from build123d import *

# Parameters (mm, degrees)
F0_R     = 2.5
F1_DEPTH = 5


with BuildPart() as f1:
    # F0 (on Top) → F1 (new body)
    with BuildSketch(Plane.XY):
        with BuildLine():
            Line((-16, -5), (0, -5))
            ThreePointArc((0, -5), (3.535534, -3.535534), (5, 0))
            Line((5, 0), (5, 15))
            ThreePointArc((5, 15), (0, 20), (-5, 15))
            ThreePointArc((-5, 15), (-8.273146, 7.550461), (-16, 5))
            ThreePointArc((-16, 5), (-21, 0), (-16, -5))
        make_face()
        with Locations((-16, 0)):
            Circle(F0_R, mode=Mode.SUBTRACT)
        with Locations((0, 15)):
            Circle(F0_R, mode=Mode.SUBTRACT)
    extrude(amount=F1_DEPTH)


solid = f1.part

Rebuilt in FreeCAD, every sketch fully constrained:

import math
import FreeCAD as App
import Part
import Sketcher
from FreeCAD import Vector
Q = App.Units.Quantity

doc = App.newDocument("Part")
params = doc.addObject("Spreadsheet::Sheet", "Params")
for row, (alias, value) in enumerate([
    ("sketch1_diameter", "5 mm"),
    ("sketch1_radius", "5 mm"),
    ("sketch1_radius2", "9.999999 mm"),
    ("sketch1_width", "16 mm"),
    ("sketch1_height", "15 mm"),
    ("pad1_length", "5 mm"),
], start=1):
    params.set(f"A{row}", alias)
    params.set(f"B{row}", "=" + value)
    params.setAlias(f"B{row}", alias)

body = doc.addObject("PartDesign::Body", "Body")

# Sketch on XY plane
sketch1 = body.newObject("Sketcher::SketchObject", "Sketch")
sketch1.AttachmentSupport = (doc.getObject("XY_Plane"), [""])
sketch1.MapMode = "FlatFace"
sketch1.addGeometry([
    Part.LineSegment(Vector(-16, -5, 0), Vector(0, -5, 0)),  # 0
    Part.ArcOfCircle(Part.Circle(Vector(0, 0, 0), Vector(0, 0, 1), 5), math.radians(-90), math.radians(0)),  # 1
    Part.LineSegment(Vector(5, 0, 0), Vector(5, 15, 0)),  # 2
    Part.ArcOfCircle(Part.Circle(Vector(0, 15, 0), Vector(0, 0, 1), 5), math.radians(0), math.radians(180)),  # 3
    Part.ArcOfCircle(Part.Circle(Vector(-15, 14.9, 0), Vector(0, 0, 1), 10), math.radians(-96), math.radians(0)),  # 4
    Part.ArcOfCircle(Part.Circle(Vector(-16, 0, 0), Vector(0, 0, 1), 5), math.radians(90), math.radians(270)),  # 5
    Part.Circle(Vector(-16, 0, 0), Vector(0, 0, 1), 2.5),  # 6
    Part.Circle(Vector(0, 15, 0), Vector(0, 0, 1), 2.5),  # 7
], False)
sketch1.addConstraint([
    Sketcher.Constraint("Tangent", 0, 2, 1, 1),
    Sketcher.Constraint("Tangent", 1, 2, 2, 1),
    Sketcher.Constraint("Tangent", 2, 2, 3, 1),
    Sketcher.Constraint("Coincident", 3, 2, 4, 2),
    Sketcher.Constraint("Coincident", 4, 1, 5, 1),
    Sketcher.Constraint("Tangent", 5, 2, 0, 1),
    Sketcher.Constraint("Horizontal", 0),
    Sketcher.Constraint("Vertical", 2),
    Sketcher.Constraint("Coincident", 1, 3, -1, 1),
    Sketcher.Constraint("Coincident", 6, 3, 5, 3),
    Sketcher.Constraint("Coincident", 7, 3, 3, 3),
    Sketcher.Constraint("Equal", 1, 3),
    Sketcher.Constraint("Equal", 3, 5),
    Sketcher.Constraint("Equal", 6, 7),
    Sketcher.Constraint("Horizontal", 2, 2, 3, 2),
    Sketcher.Constraint("Vertical", 6, 3, 4, 1),
    Sketcher.Constraint("Diameter", 6, Q("5 mm")),
    Sketcher.Constraint("Radius", 1, Q("5 mm")),
    Sketcher.Constraint("Radius", 4, Q("9.999999 mm")),
    Sketcher.Constraint("DistanceX", 0, 1, 0, 2, Q("16 mm")),
    Sketcher.Constraint("DistanceY", 2, 1, 2, 2, Q("15 mm")),
])
sketch1.setExpression("Constraints[16]", "Params.sketch1_diameter")
sketch1.setExpression("Constraints[17]", "Params.sketch1_radius")
sketch1.setExpression("Constraints[18]", "Params.sketch1_radius2")
sketch1.setExpression("Constraints[19]", "Params.sketch1_width")
sketch1.setExpression("Constraints[20]", "Params.sketch1_height")
pad1 = body.newObject("PartDesign::Pad", "Pad")
pad1.Profile = sketch1
pad1.setExpression("Length", "Params.pad1_length")

doc.recompute()
